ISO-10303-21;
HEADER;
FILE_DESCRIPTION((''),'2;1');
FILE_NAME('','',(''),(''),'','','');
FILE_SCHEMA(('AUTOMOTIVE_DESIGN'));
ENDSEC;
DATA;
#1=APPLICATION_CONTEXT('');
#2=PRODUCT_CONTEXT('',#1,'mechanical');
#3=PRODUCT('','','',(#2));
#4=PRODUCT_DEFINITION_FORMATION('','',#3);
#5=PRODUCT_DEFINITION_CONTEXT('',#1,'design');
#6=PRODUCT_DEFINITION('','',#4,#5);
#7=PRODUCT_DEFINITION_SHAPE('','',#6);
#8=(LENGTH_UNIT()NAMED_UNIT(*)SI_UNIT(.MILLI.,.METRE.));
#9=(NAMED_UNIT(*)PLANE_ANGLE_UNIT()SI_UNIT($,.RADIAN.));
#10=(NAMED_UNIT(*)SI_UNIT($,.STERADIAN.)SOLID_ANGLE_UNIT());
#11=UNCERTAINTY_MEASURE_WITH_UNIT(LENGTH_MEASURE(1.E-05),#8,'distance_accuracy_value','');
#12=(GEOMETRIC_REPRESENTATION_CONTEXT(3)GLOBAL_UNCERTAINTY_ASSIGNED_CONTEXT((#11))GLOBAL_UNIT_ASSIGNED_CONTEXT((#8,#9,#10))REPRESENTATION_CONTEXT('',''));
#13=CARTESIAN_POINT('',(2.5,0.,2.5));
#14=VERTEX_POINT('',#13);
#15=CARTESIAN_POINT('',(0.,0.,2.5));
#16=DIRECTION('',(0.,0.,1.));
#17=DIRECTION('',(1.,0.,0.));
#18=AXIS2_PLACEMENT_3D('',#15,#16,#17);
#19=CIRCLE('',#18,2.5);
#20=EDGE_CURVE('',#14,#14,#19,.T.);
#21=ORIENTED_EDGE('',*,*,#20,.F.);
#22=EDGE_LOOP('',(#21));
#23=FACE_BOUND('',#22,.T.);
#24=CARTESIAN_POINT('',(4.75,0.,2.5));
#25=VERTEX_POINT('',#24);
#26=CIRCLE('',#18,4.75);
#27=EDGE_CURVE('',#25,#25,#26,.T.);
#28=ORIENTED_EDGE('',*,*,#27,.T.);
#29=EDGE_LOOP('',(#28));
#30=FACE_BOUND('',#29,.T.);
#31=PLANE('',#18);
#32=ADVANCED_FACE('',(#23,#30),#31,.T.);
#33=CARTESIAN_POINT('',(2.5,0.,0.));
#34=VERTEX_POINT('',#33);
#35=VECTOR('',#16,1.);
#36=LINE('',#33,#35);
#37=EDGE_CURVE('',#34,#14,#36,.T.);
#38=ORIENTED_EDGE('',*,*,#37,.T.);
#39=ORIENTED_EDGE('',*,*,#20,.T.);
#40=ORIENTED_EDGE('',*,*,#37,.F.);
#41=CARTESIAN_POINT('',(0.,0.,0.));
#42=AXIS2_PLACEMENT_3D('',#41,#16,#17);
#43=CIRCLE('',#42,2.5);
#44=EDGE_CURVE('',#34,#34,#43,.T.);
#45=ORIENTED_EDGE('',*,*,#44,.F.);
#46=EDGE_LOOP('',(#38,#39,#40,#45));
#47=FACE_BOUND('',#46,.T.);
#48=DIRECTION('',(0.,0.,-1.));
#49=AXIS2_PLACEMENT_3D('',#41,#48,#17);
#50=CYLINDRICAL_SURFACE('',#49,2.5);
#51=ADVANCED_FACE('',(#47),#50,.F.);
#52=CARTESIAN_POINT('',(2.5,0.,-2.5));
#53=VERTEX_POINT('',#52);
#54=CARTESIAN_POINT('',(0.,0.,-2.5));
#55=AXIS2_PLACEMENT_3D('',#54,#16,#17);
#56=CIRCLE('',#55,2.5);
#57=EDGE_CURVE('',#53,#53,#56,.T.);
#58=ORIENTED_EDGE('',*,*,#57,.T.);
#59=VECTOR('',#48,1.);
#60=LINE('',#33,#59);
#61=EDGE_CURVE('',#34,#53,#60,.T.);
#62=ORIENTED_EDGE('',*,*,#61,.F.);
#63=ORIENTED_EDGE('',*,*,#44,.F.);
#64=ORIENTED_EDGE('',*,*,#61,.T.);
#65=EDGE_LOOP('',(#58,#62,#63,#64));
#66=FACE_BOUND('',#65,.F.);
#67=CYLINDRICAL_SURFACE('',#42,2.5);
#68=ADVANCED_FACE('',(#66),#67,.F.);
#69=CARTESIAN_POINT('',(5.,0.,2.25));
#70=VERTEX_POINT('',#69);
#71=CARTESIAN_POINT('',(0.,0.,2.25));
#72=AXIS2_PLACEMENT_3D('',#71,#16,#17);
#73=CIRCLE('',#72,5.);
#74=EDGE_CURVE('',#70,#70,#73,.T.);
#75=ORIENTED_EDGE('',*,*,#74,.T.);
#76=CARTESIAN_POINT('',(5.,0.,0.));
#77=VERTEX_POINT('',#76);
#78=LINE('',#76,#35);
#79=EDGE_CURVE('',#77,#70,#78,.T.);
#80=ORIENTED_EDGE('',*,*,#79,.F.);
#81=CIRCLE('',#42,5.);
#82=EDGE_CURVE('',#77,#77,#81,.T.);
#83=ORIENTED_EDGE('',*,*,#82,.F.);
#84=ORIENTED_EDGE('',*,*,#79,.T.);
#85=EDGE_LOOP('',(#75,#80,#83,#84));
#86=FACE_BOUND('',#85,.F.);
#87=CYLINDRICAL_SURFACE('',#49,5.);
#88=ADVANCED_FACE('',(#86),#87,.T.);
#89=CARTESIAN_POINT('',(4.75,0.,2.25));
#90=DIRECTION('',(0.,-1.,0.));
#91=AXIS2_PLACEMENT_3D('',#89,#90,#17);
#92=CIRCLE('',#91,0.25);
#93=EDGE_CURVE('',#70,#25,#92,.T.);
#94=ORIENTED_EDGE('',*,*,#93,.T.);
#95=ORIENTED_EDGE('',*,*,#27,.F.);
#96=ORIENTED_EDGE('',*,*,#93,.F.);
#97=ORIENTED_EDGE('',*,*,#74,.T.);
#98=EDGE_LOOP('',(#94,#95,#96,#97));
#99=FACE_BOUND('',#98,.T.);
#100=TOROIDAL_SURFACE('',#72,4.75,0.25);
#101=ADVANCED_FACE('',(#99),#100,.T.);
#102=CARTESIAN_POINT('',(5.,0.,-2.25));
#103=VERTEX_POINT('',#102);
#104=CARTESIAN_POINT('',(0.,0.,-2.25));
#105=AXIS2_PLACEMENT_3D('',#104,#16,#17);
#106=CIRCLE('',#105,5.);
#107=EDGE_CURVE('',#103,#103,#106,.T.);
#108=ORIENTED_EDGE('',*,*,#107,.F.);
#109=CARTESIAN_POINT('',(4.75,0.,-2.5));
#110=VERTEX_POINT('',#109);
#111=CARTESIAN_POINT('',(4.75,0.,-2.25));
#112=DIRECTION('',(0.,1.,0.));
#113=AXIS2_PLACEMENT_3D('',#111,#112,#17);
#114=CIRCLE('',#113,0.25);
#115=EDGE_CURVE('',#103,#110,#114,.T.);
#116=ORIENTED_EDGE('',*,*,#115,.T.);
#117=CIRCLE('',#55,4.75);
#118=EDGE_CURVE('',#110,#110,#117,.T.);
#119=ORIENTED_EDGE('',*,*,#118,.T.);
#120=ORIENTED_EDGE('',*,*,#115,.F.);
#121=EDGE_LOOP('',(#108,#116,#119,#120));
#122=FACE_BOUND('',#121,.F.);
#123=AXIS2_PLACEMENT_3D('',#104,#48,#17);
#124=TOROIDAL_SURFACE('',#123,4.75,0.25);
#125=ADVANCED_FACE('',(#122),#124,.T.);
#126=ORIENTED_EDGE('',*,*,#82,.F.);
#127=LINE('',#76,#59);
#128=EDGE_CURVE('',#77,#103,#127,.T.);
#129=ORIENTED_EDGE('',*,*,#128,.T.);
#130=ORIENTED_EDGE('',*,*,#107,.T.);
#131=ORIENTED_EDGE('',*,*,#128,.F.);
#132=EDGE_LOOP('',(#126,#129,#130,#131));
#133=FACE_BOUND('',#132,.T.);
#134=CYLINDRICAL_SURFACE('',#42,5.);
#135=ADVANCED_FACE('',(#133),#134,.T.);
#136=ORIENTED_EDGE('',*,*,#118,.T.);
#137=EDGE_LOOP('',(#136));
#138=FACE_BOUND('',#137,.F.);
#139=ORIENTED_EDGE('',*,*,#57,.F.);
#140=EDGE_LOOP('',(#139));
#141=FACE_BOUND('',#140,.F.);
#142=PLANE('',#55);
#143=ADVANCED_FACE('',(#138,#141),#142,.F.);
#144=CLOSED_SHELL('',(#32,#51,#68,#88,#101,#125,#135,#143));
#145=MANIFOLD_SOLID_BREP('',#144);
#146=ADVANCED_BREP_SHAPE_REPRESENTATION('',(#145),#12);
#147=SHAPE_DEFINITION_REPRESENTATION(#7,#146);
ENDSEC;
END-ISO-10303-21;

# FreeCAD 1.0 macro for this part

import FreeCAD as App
import Part
import Sketcher


def edges_at(feature, points):
    """Names of the edges that pass closest to the given points."""
    edges = feature.Shape.Edges
    near = lambda p: min(range(len(edges)), key=lambda i: edges[i].distToShape(Part.Vertex(*p))[0])
    return sorted({f"Edge{near(p) + 1}" for p in points})

doc = App.newDocument("Part")
body = doc.addObject("PartDesign::Body", "Body")

# Sketch on XY plane
sketch1 = body.newObject("Sketcher::SketchObject", "Sketch")
sketch1.AttachmentSupport = (doc.getObject("XY_Plane"), [""])
sketch1.MapMode = "FlatFace"
sketch1.addGeometry(Part.Circle(App.Vector(0, 0, 0), App.Vector(0, 0, 1), 5), False)
sketch1.addGeometry(Part.Circle(App.Vector(0, 0, 0), App.Vector(0, 0, 1), 2.5), False)
sketch1.addConstraint(Sketcher.Constraint("Coincident", 0, 3, -1, 1))
sketch1.addConstraint(Sketcher.Constraint("Coincident", 1, 3, -1, 1))
sketch1.addConstraint(Sketcher.Constraint("Diameter", 0, 10.0))
sketch1.addConstraint(Sketcher.Constraint("Diameter", 1, 5.0))
pad1 = body.newObject("PartDesign::Pad", "Pad")
pad1.Profile = sketch1
pad1.Length = 5
pad1.Midplane = True
doc.recompute()

fillet = body.newObject("PartDesign::Fillet", "Fillet")
fillet.Base = (pad1, edges_at(pad1, [(-5, 0, 2.5), (-5, 0, -2.5)]))
fillet.Radius = 0.25

doc.recompute()
